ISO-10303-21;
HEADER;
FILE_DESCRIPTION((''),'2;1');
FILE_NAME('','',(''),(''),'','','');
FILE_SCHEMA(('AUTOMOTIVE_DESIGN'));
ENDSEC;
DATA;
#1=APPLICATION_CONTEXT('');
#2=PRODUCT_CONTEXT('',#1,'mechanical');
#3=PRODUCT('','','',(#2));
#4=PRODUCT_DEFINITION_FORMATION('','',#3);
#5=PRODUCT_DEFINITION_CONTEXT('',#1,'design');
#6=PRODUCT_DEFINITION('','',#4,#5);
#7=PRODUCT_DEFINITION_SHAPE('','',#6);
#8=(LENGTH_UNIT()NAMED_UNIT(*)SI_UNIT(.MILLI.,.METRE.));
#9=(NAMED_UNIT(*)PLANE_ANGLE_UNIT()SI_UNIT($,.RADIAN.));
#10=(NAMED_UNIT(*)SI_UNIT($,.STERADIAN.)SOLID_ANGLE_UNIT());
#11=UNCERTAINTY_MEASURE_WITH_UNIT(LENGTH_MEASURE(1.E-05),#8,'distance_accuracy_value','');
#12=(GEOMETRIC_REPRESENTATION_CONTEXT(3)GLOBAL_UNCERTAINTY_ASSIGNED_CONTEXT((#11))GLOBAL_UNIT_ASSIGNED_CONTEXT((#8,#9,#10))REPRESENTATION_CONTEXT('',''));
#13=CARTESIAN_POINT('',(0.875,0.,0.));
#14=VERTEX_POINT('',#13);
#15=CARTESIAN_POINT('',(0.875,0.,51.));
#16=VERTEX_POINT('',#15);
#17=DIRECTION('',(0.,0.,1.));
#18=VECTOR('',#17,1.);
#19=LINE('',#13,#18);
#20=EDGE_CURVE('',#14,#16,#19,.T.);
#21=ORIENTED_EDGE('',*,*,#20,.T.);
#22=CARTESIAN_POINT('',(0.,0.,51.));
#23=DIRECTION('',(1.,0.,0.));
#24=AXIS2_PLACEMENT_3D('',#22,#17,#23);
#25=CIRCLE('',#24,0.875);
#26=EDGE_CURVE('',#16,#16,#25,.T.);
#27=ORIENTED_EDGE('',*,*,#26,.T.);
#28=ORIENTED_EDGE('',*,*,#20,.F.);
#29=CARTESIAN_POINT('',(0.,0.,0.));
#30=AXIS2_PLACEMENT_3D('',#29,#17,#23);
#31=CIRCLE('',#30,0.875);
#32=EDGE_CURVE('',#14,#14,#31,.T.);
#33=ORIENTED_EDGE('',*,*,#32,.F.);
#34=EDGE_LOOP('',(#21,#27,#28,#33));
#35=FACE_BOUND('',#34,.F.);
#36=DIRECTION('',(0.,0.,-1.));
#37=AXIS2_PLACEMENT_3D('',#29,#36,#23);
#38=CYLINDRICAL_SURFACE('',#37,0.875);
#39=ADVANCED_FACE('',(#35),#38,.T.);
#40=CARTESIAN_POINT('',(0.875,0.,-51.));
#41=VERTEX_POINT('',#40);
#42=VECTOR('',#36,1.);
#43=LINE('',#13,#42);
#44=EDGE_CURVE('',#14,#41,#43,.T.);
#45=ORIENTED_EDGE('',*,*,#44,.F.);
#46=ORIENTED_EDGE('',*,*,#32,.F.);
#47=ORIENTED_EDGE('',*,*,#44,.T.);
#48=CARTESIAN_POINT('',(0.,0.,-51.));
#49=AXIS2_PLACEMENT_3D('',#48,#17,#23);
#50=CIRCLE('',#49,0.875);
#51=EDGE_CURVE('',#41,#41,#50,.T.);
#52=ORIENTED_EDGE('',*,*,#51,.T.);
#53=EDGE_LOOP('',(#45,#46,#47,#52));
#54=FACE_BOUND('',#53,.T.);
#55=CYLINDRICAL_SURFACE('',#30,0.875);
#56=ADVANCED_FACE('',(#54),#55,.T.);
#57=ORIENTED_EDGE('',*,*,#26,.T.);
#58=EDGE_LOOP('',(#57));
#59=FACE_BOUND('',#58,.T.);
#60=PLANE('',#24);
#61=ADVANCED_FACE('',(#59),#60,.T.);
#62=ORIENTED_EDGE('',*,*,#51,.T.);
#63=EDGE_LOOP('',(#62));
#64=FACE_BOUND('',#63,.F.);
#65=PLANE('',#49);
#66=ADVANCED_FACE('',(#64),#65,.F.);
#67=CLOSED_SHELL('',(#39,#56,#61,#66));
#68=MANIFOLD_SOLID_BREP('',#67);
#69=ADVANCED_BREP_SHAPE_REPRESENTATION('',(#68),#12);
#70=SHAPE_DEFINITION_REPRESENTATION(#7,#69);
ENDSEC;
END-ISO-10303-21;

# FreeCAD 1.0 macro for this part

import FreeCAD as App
import Part
import Sketcher
Q = App.Units.Quantity

doc = App.newDocument("Part")
params = doc.addObject("Spreadsheet::Sheet", "Params")
for row, (alias, value) in enumerate([
    ("sketch1_diameter", "1.75 mm"),
    ("pad1_length", "102 mm"),
], start=1):
    params.set(f"A{row}", alias)
    params.set(f"B{row}", "=" + value)
    params.setAlias(f"B{row}", alias)

body = doc.addObject("PartDesign::Body", "Body")

# Sketch on XY plane
sketch1 = body.newObject("Sketcher::SketchObject", "Sketch")
sketch1.AttachmentSupport = (doc.getObject("XY_Plane"), [""])
sketch1.MapMode = "FlatFace"
sketch1.addGeometry(Part.Circle(App.Vector(0, 0, 0), App.Vector(0, 0, 1), 0.875), False)
sketch1.addConstraint(Sketcher.Constraint("Coincident", 0, 3, -1, 1))
sketch1.addConstraint(Sketcher.Constraint("Diameter", 0, Q("1.75 mm")))
sketch1.setExpression("Constraints[1]", "Params.sketch1_diameter")
pad1 = body.newObject("PartDesign::Pad", "Pad")
pad1.Profile = sketch1
pad1.setExpression("Length", "Params.pad1_length")
pad1.Midplane = True

doc.recompute()
